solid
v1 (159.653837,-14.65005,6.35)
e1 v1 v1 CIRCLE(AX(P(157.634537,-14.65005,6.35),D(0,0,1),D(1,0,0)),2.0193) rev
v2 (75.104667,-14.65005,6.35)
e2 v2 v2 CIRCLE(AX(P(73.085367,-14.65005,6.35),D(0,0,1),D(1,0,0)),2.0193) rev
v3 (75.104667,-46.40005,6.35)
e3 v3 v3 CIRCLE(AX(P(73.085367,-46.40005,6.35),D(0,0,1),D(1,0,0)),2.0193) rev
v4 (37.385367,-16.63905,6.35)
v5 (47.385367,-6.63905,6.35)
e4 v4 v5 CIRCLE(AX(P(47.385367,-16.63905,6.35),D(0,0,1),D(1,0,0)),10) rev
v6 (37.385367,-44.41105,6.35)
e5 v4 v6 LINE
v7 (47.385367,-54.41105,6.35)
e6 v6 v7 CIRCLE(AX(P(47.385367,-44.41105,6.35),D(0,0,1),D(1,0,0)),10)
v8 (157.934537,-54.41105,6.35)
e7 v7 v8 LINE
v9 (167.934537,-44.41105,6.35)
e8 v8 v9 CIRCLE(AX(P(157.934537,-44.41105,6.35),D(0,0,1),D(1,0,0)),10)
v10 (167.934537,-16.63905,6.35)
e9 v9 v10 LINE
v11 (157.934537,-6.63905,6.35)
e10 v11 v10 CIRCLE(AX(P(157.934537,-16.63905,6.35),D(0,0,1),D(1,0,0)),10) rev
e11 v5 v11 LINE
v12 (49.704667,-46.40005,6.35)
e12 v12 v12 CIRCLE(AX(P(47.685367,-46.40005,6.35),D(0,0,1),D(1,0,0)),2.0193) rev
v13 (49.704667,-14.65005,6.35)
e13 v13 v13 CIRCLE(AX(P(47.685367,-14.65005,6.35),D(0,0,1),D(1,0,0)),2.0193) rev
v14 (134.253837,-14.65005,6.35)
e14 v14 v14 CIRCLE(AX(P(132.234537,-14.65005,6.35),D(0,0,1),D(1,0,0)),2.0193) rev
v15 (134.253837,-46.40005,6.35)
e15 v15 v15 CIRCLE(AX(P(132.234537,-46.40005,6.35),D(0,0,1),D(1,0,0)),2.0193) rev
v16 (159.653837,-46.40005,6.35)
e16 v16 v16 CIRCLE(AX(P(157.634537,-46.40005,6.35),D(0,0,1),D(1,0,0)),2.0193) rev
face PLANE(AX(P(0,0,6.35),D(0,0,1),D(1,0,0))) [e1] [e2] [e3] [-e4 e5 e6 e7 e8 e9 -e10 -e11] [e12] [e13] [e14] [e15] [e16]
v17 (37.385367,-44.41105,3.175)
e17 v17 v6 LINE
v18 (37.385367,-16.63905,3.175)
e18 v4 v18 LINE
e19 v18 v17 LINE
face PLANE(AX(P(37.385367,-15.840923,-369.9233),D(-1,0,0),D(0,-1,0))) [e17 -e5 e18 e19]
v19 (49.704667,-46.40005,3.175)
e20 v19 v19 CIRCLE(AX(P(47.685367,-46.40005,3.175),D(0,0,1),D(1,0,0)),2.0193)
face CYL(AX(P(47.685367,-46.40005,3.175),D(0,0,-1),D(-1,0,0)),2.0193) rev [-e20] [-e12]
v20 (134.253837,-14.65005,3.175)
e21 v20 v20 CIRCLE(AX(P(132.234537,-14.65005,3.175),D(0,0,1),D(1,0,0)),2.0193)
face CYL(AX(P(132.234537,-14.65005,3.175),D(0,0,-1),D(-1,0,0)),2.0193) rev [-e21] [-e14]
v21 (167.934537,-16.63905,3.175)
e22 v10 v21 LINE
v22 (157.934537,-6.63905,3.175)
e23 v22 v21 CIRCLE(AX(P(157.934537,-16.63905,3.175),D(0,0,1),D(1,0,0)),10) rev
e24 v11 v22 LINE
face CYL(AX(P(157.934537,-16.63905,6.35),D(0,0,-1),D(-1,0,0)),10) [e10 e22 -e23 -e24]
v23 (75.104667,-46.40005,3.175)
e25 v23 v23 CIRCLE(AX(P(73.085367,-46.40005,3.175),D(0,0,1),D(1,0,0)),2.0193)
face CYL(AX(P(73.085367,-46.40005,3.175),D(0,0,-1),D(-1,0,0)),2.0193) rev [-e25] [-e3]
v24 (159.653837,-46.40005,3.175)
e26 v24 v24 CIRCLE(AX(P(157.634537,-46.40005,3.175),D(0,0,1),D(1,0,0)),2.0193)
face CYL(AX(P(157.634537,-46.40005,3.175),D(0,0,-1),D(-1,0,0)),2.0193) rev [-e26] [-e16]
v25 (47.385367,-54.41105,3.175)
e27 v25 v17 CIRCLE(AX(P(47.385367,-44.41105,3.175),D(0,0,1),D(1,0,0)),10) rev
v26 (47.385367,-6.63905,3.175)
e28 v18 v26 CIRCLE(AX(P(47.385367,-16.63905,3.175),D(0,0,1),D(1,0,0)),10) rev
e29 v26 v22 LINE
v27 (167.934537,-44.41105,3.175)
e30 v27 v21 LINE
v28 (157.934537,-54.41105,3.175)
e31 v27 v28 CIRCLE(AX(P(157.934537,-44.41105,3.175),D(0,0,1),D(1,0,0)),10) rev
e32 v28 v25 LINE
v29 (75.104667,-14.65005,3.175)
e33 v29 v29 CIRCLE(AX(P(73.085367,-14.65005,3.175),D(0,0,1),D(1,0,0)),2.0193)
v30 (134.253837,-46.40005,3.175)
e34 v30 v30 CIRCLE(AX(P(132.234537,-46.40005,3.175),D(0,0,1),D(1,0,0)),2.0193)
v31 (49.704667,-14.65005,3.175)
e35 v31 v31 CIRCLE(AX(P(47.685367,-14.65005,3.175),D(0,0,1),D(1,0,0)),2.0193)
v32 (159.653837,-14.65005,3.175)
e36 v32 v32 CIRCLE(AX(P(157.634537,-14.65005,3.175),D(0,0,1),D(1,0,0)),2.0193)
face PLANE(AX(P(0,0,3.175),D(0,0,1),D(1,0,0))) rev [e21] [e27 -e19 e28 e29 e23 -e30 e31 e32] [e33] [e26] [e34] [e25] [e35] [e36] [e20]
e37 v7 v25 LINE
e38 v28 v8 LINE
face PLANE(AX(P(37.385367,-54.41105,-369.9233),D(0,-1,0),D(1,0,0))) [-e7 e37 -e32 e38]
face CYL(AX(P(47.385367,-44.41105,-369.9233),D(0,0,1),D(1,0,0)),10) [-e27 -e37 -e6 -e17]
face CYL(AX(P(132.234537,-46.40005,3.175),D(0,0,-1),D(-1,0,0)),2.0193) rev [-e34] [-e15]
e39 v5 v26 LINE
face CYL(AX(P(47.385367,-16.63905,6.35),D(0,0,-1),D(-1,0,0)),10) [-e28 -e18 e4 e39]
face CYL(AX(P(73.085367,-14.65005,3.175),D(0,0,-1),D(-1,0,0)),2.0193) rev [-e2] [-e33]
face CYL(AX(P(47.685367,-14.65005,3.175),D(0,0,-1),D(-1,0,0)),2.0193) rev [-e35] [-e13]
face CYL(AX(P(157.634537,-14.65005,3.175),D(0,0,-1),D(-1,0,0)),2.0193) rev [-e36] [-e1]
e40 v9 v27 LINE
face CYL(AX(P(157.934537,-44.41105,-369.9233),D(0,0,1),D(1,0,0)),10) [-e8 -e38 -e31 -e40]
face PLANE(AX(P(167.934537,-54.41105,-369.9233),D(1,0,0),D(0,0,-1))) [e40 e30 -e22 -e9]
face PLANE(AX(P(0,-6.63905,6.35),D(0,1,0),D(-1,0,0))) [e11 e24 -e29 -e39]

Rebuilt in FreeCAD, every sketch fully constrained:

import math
import FreeCAD as App
import Part
import Sketcher

V = App.Vector


def edges_at(feature, points):
    """Names of the edges that pass closest to the given points."""
    edges = feature.Shape.Edges
    near = lambda p: min(range(len(edges)), key=lambda i: edges[i].distToShape(Part.Vertex(*p))[0])
    return sorted({f"Edge{near(p) + 1}" for p in points})


def add_polygon(sketch, points):
    """Adds a closed chain of lines whose ends are joined by coincident constraints."""
    first, n = sketch.GeometryCount, len(points)
    for a, b in zip(points, points[1:] + points[:1]):
        sketch.addGeometry(Part.LineSegment(App.Vector(*a, 0), App.Vector(*b, 0)), False)
    for i in range(n):
        sketch.addConstraint(Sketcher.Constraint("Coincident", first + i, 2, first + (i + 1) % n, 1))

doc = App.newDocument("Part")
body = doc.addObject("PartDesign::Body", "Body")

sketch1 = body.newObject("Sketcher::SketchObject", "Sketch")
sketch1.AttachmentSupport = (doc.getObject("XY_Plane"), [""])
sketch1.MapMode = "FlatFace"
add_polygon(sketch1, [(165.9, -16.7), (157.3, -8.1), (115.4, 33.9), (115.4, 203.4), (157.3, 245.3), (165.9, 254), (165.9, 294), (39.4, 289.7), (39.4, 254), (90, 203.4), (90, 33.9), (39.4, -16.7), (39.4, -52.4), (165.9, -56.7)])
sketch1.addGeometry(Part.Circle(V(47.7, -46.4, 0), V(0, 0, 1), 2), False)
sketch1.addGeometry(Part.Circle(V(47.7, -14.7, 0), V(0, 0, 1), 2), False)
sketch1.addGeometry(Part.Circle(V(73.1, -46.4, 0), V(0, 0, 1), 2), False)
sketch1.addGeometry(Part.Circle(V(73.1, -14.7, 0), V(0, 0, 1), 2), False)
sketch1.addGeometry(Part.Circle(V(132.2, -46.4, 0), V(0, 0, 1), 2), False)
sketch1.addGeometry(Part.Circle(V(132.2, -14.7, 0), V(0, 0, 1), 2), False)
sketch1.addGeometry(Part.Circle(V(157.6, -46.4, 0), V(0, 0, 1), 2), False)
sketch1.addGeometry(Part.Circle(V(157.6, -14.7, 0), V(0, 0, 1), 2), False)
sketch1.addGeometry(Part.Circle(V(47.7, 251.9, 0), V(0, 0, 1), 2), False)
sketch1.addGeometry(Part.Circle(V(47.7, 283.7, 0), V(0, 0, 1), 2), False)
sketch1.addGeometry(Part.Circle(V(73.1, 251.9, 0), V(0, 0, 1), 2), False)
sketch1.addGeometry(Part.Circle(V(73.1, 283.7, 0), V(0, 0, 1), 2), False)
sketch1.addGeometry(Part.Circle(V(132.2, 251.9, 0), V(0, 0, 1), 2), False)
sketch1.addGeometry(Part.Circle(V(157.6, 251.9, 0), V(0, 0, 1), 2), False)
sketch1.addGeometry(Part.Circle(V(157.6, 283.7, 0), V(0, 0, 1), 2), False)
sketch1.addConstraint([
    Sketcher.Constraint("Vertical", 2),
    Sketcher.Constraint("Vertical", 5),
    Sketcher.Constraint("Vertical", 7),
    Sketcher.Constraint("Vertical", 9),
    Sketcher.Constraint("Vertical", 11),
    Sketcher.Constraint("Vertical", 13),
    Sketcher.Constraint("Equal", 14, 15),
    Sketcher.Constraint("Equal", 15, 16),
    Sketcher.Constraint("Equal", 16, 17),
    Sketcher.Constraint("Equal", 17, 18),
    Sketcher.Constraint("Equal", 18, 19),
    Sketcher.Constraint("Equal", 19, 20),
    Sketcher.Constraint("Equal", 20, 21),
    Sketcher.Constraint("Equal", 21, 22),
    Sketcher.Constraint("Equal", 22, 23),
    Sketcher.Constraint("Equal", 23, 24),
    Sketcher.Constraint("Equal", 24, 25),
    Sketcher.Constraint("Equal", 25, 26),
    Sketcher.Constraint("Equal", 26, 27),
    Sketcher.Constraint("Equal", 27, 28),
    Sketcher.Constraint("Parallel", 0, 1),
    Sketcher.Constraint("Perpendicular", 1, 3),
    Sketcher.Constraint("Parallel", 3, 4),
    Sketcher.Constraint("Perpendicular", 4, 8),
    Sketcher.Constraint("Perpendicular", 8, 10),
    Sketcher.Constraint("Horizontal", 14, 3, 16, 3),
    Sketcher.Constraint("Horizontal", 15, 3, 17, 3),
    Sketcher.Constraint("Horizontal", 16, 3, 18, 3),
    Sketcher.Constraint("Horizontal", 17, 3, 19, 3),
    Sketcher.Constraint("Horizontal", 18, 3, 20, 3),
    Sketcher.Constraint("Horizontal", 19, 3, 21, 3),
    Sketcher.Constraint("Horizontal", 22, 3, 24, 3),
    Sketcher.Constraint("Horizontal", 23, 3, 25, 3),
    Sketcher.Constraint("Horizontal", 24, 3, 26, 3),
    Sketcher.Constraint("Horizontal", 26, 3, 27, 3),
    Sketcher.Constraint("Horizontal", 25, 3, 28, 3),
    Sketcher.Constraint("Horizontal", 4, 2, 7, 2),
    Sketcher.Constraint("Horizontal", 2, 2, 8, 2),
    Sketcher.Constraint("Horizontal", 1, 2, 9, 2),
    Sketcher.Constraint("Horizontal", 10, 2, 13, 2),
    Sketcher.Constraint("Vertical", 14, 3, 15, 3),
    Sketcher.Constraint("Vertical", 16, 3, 17, 3),
    Sketcher.Constraint("Vertical", 18, 3, 19, 3),
    Sketcher.Constraint("Vertical", 20, 3, 21, 3),
    Sketcher.Constraint("Vertical", 15, 3, 22, 3),
    Sketcher.Constraint("Vertical", 22, 3, 23, 3),
    Sketcher.Constraint("Vertical", 17, 3, 24, 3),
    Sketcher.Constraint("Vertical", 24, 3, 25, 3),
    Sketcher.Constraint("Vertical", 19, 3, 26, 3),
    Sketcher.Constraint("Vertical", 21, 3, 27, 3),
    Sketcher.Constraint("Vertical", 27, 3, 28, 3),
    Sketcher.Constraint("Vertical", 0, 2, 3, 2),
    Sketcher.Constraint("Vertical", 7, 2, 10, 2),
    Sketcher.Constraint("Vertical", 5, 2, 12, 2),
    Sketcher.Constraint("Equal", 7, 11),
    Sketcher.Constraint("Equal", 5, 13),
    Sketcher.Constraint("Diameter", 14, 4.0386),
    Sketcher.Constraint("DistanceX", 14, 3, 16, 3, 25.4),
    Sketcher.Constraint("DistanceX", 18, 3, 20, 3, 25.4),
    Sketcher.Constraint("DistanceY", 21, 3, 0, 2, 6.6),
    Sketcher.Constraint("DistanceY", 3, 2, 27, 3, 6.6),
    Sketcher.Constraint("DistanceX", 27, 3, 4, 2, 8.3),
    Sketcher.Constraint("DistanceX", 6, 2, 23, 3, 8.3),
    Sketcher.Constraint("DistanceX", 8, 2, 2, 2, 25.4),
    Sketcher.Constraint("DistanceY", 14, 3, 15, 3, 31.75),
    Sketcher.Constraint("DistanceY", 22, 3, 23, 3, 31.75),
    Sketcher.Constraint("DistanceY", 5, 1, 5, 2, 40.0057),
    Sketcher.Constraint("DistanceY", 7, 2, 7, 1, 35.7417),
    Sketcher.Constraint("DistanceY", 28, 3, 5, 2, 10.275),
    Sketcher.Constraint("DistanceY", 2, 1, 2, 2, 169.48903),
    Sketcher.Constraint("DistanceY", 15, 3, 22, 3, 266.5996),
    Sketcher.Constraint("DistanceY", 14, 3, -1, 1, 46.40005),
    Sketcher.Constraint("DistanceX", -1, 1, 14, 3, 47.685367),
])
pad1 = body.newObject("PartDesign::Pad", "Pad")
pad1.Profile = sketch1
pad1.Length = 3.175

sketch2 = body.newObject("Sketcher::SketchObject", "Sketch001")
sketch2.AttachmentSupport = (doc.getObject("XY_Plane"), [""])
sketch2.MapMode = "FlatFace"
sketch2.AttachmentOffset = App.Placement(V(0, 0, 3.175), App.Rotation())
add_polygon(sketch2, [(39.4, -52.4), (165.9, -56.7), (165.9, -52.4)])
add_polygon(sketch2, [(165.9, 289.7), (165.9, 294), (39.4, 289.7)])
sketch2.addConstraint([
    Sketcher.Constraint("Vertical", 1),
    Sketcher.Constraint("Horizontal", 2),
    Sketcher.Constraint("Vertical", 3),
    Sketcher.Constraint("Horizontal", 5),
    Sketcher.Constraint("Vertical", 1, 2, 3, 2),
    Sketcher.Constraint("Vertical", 2, 2, 4, 2),
    Sketcher.Constraint("Equal", 1, 3),
    Sketcher.Constraint("DistanceY", 1, 1, 1, 2, 4.264),
    Sketcher.Constraint("DistanceX", 2, 2, 2, 1, 126.54917),
    Sketcher.Constraint("DistanceY", 1, 2, 3, 2, 346.3856),
    Sketcher.Constraint("DistanceY", 0, 2, -1, 1, 56.67505),
    Sketcher.Constraint("DistanceX", -1, 1, 0, 2, 165.934537),
])
pocket1 = body.newObject("PartDesign::Pocket", "Pocket")
pocket1.Profile = sketch2
pocket1.Length = 10

sketch3 = body.newObject("Sketcher::SketchObject", "Sketch002")
sketch3.AttachmentSupport = (doc.getObject("XY_Plane"), [""])
sketch3.MapMode = "FlatFace"
sketch3.AttachmentOffset = App.Placement(V(0, 0, 3.175), App.Rotation())
add_polygon(sketch3, [(37.4, -15.8), (37.4, -54.4), (167.9, -54.4), (167.9, -15.8), (117.4, 34.7), (117.4, 202.6), (167.9, 253.1), (167.9, 291.7), (37.4, 291.7), (37.4, 253.1), (88, 202.6), (88, 34.7)])
sketch3.addGeometry(Part.Circle(V(47.7, -46.4, 0), V(0, 0, 1), 2), False)
sketch3.addGeometry(Part.Circle(V(47.7, -14.7, 0), V(0, 0, 1), 2), False)
sketch3.addGeometry(Part.Circle(V(73.1, -46.4, 0), V(0, 0, 1), 2), False)
sketch3.addGeometry(Part.Circle(V(73.1, -14.7, 0), V(0, 0, 1), 2), False)
sketch3.addGeometry(Part.Circle(V(132.2, -46.4, 0), V(0, 0, 1), 2), False)
sketch3.addGeometry(Part.Circle(V(132.2, -14.7, 0), V(0, 0, 1), 2), False)
sketch3.addGeometry(Part.Circle(V(157.6, -46.4, 0), V(0, 0, 1), 2), False)
sketch3.addGeometry(Part.Circle(V(157.6, -14.7, 0), V(0, 0, 1), 2), False)
sketch3.addGeometry(Part.Circle(V(47.7, 251.9, 0), V(0, 0, 1), 2), False)
sketch3.addGeometry(Part.Circle(V(47.7, 283.7, 0), V(0, 0, 1), 2), False)
sketch3.addGeometry(Part.Circle(V(73.1, 251.9, 0), V(0, 0, 1), 2), False)
sketch3.addGeometry(Part.Circle(V(73.1, 283.7, 0), V(0, 0, 1), 2), False)
sketch3.addGeometry(Part.Circle(V(132.2, 251.9, 0), V(0, 0, 1), 2), False)
sketch3.addGeometry(Part.Circle(V(157.6, 251.9, 0), V(0, 0, 1), 2), False)
sketch3.addGeometry(Part.Circle(V(157.6, 283.7, 0), V(0, 0, 1), 2), False)
sketch3.addConstraint([
    Sketcher.Constraint("Vertical", 0),
    Sketcher.Constraint("Horizontal", 1),
    Sketcher.Constraint("Vertical", 2),
    Sketcher.Constraint("Vertical", 4),
    Sketcher.Constraint("Vertical", 6),
    Sketcher.Constraint("Horizontal", 7),
    Sketcher.Constraint("Vertical", 8),
    Sketcher.Constraint("Vertical", 10),
    Sketcher.Constraint("Equal", 12, 13),
    Sketcher.Constraint("Equal", 13, 14),
    Sketcher.Constraint("Equal", 14, 15),
    Sketcher.Constraint("Equal", 15, 16),
    Sketcher.Constraint("Equal", 16, 17),
    Sketcher.Constraint("Equal", 17, 18),
    Sketcher.Constraint("Equal", 18, 19),
    Sketcher.Constraint("Equal", 19, 20),
    Sketcher.Constraint("Equal", 20, 21),
    Sketcher.Constraint("Equal", 21, 22),
    Sketcher.Constraint("Equal", 22, 23),
    Sketcher.Constraint("Equal", 23, 24),
    Sketcher.Constraint("Equal", 24, 25),
    Sketcher.Constraint("Equal", 25, 26),
    Sketcher.Constraint("Perpendicular", 3, 5),
    Sketcher.Constraint("Perpendicular", 5, 9),
    Sketcher.Constraint("Perpendicular", 9, 11),
    Sketcher.Constraint("Horizontal", 12, 3, 14, 3),
    Sketcher.Constraint("Horizontal", 13, 3, 15, 3),
    Sketcher.Constraint("Horizontal", 14, 3, 16, 3),
    Sketcher.Constraint("Horizontal", 15, 3, 17, 3),
    Sketcher.Constraint("Horizontal", 16, 3, 18, 3),
    Sketcher.Constraint("Horizontal", 17, 3, 19, 3),
    Sketcher.Constraint("Horizontal", 20, 3, 22, 3),
    Sketcher.Constraint("Horizontal", 21, 3, 23, 3),
    Sketcher.Constraint("Horizontal", 22, 3, 24, 3),
    Sketcher.Constraint("Horizontal", 24, 3, 25, 3),
    Sketcher.Constraint("Horizontal", 23, 3, 26, 3),
    Sketcher.Constraint("Horizontal", 5, 2, 8, 2),
    Sketcher.Constraint("Horizontal", 4, 2, 9, 2),
    Sketcher.Constraint("Horizontal", 3, 2, 10, 2),
    Sketcher.Constraint("Horizontal", 2, 2, 11, 2),
    Sketcher.Constraint("Vertical", 12, 3, 13, 3),
    Sketcher.Constraint("Vertical", 14, 3, 15, 3),
    Sketcher.Constraint("Vertical", 16, 3, 17, 3),
    Sketcher.Constraint("Vertical", 18, 3, 19, 3),
    Sketcher.Constraint("Vertical", 13, 3, 20, 3),
    Sketcher.Constraint("Vertical", 20, 3, 21, 3),
    Sketcher.Constraint("Vertical", 15, 3, 22, 3),
    Sketcher.Constraint("Vertical", 22, 3, 23, 3),
    Sketcher.Constraint("Vertical", 17, 3, 24, 3),
    Sketcher.Constraint("Vertical", 19, 3, 25, 3),
    Sketcher.Constraint("Vertical", 25, 3, 26, 3),
    Sketcher.Constraint("Vertical", 2, 2, 5, 2),
    Sketcher.Constraint("Vertical", 0, 2, 7, 2),
    Sketcher.Constraint("Equal", 2, 6),
    Sketcher.Constraint("Diameter", 12, 4.0386),
    Sketcher.Constraint("DistanceX", 12, 3, 14, 3, 25.4),
    Sketcher.Constraint("DistanceX", 16, 3, 18, 3, 25.4),
    Sketcher.Constraint("DistanceX", 0, 2, 12, 3, 10.3),
    Sketcher.Constraint("DistanceX", 18, 3, 1, 2, 10.3),
    Sketcher.Constraint("DistanceX", 9, 2, 4, 2, 29.4),
    Sketcher.Constraint("DistanceY", 12, 3, 13, 3, 31.75),
    Sketcher.Constraint("DistanceY", 20, 3, 21, 3, 31.75),
    Sketcher.Constraint("DistanceY", 0, 2, 12, 3, 8.011),
    Sketcher.Constraint("DistanceY", 26, 3, 6, 2, 8.011),
    Sketcher.Constraint("DistanceX", 1, 1, 1, 2, 130.54917),
    Sketcher.Constraint("DistanceY", 13, 3, 20, 3, 266.5996),
    Sketcher.Constraint("DistanceY", 0, 2, 0, 1, 38.570127),
    Sketcher.Constraint("DistanceY", 12, 3, -1, 1, 46.40005),
    Sketcher.Constraint("DistanceX", -1, 1, 12, 3, 47.685367),
])
pad2 = body.newObject("PartDesign::Pad", "Pad001")
pad2.Profile = sketch3
pad2.Length = 3.175
pad2.Reversed = True
doc.recompute()

fillet = body.newObject("PartDesign::Fillet", "Fillet")
fillet.Base = (pad2, edges_at(pad2, [
    (37.385, -54.411, 1.587),
    (167.935, -54.411, 1.587),
    (167.935, -15.841, 1.587),
    (167.935, 253.14, 1.587),
    (167.935, 291.711, 1.587),
    (37.385, 291.711, 1.587),
    (37.385, 253.14, 1.587),
    (37.385, -15.841, 1.587),
]))
fillet.Radius = 10
doc.recompute()

fillet2 = body.newObject("PartDesign::Fillet", "Fillet001")
fillet2.Base = (fillet, edges_at(fillet, [
    (117.36, 34.734, 1.587),
    (117.36, 202.566, 1.587),
    (87.96, 202.566, 1.587),
    (87.96, 34.734, 1.587),
]))
fillet2.Radius = 50

sketch4 = body.newObject("Sketcher::SketchObject", "Sketch003")
sketch4.AttachmentSupport = (doc.getObject("XY_Plane"), [""])
sketch4.MapMode = "FlatFace"
sketch4.AttachmentOffset = App.Placement(V(0, 0, 3.175), App.Rotation())
sketch4.addGeometry(Part.Circle(V(132.2, 283.7, 0), V(0, 0, 1), 2), False)
sketch4.addConstraint([
    Sketcher.Constraint("Diameter", 0, 4.04),
    Sketcher.Constraint("DistanceY", -1, 1, 0, 3, 283.69955),
    Sketcher.Constraint("DistanceX", -1, 1, 0, 3, 132.234537),
])
pocket2 = body.newObject("PartDesign::Pocket", "Pocket001")
pocket2.Profile = sketch4
pocket2.Length = 10

sketch5 = body.newObject("Sketcher::SketchObject", "Sketch004")
sketch5.AttachmentSupport = (doc.getObject("XY_Plane"), [""])
sketch5.MapMode = "FlatFace"
sketch5.AttachmentOffset = App.Placement(V(0, 0, 3.175), App.Rotation())
sketch5.addGeometry([
    Part.LineSegment(V(167.9, -44.4, 0), V(167.9, -16.6, 0)),
    Part.ArcOfCircle(Part.Circle(V(157.9, -16.6, 0), V(0, 0, 1), 10), math.radians(0), math.radians(90)),
    Part.LineSegment(V(157.9, -6.6, 0), V(47.4, -6.6, 0)),
    Part.ArcOfCircle(Part.Circle(V(47.4, -16.6, 0), V(0, 0, 1), 10), math.radians(90), math.radians(180)),
    Part.LineSegment(V(37.4, -16.6, 0), V(37.4, -44.4, 0)),
    Part.ArcOfCircle(Part.Circle(V(47.4, -44.4, 0), V(0, 0, 1), 10), math.radians(180), math.radians(270)),
    Part.LineSegment(V(47.4, -54.4, 0), V(157.9, -54.4, 0)),
    Part.ArcOfCircle(Part.Circle(V(157.9, -44.4, 0), V(0, 0, 1), 10), math.radians(-90), math.radians(0)),
    Part.Circle(V(47.7, -46.4, 0), V(0, 0, 1), 2),
    Part.Circle(V(73.1, -46.4, 0), V(0, 0, 1), 2),
    Part.Circle(V(132.2, -46.4, 0), V(0, 0, 1), 2),
    Part.Circle(V(157.6, -46.4, 0), V(0, 0, 1), 2),
    Part.Circle(V(47.7, -14.7, 0), V(0, 0, 1), 2),
    Part.Circle(V(73.1, -14.7, 0), V(0, 0, 1), 2),
    Part.Circle(V(132.2, -14.7, 0), V(0, 0, 1), 2),
    Part.Circle(V(157.6, -14.7, 0), V(0, 0, 1), 2),
], False)
sketch5.addConstraint([
    Sketcher.Constraint("Tangent", 0, 2, 1, 1),
    Sketcher.Constraint("Tangent", 1, 2, 2, 1),
    Sketcher.Constraint("Tangent", 2, 2, 3, 1),
    Sketcher.Constraint("Tangent", 3, 2, 4, 1),
    Sketcher.Constraint("Tangent", 4, 2, 5, 1),
    Sketcher.Constraint("Tangent", 5, 2, 6, 1),
    Sketcher.Constraint("Tangent", 6, 2, 7, 1),
    Sketcher.Constraint("Tangent", 7, 2, 0, 1),
    Sketcher.Constraint("Vertical", 0),
    Sketcher.Constraint("Horizontal", 2),
    Sketcher.Constraint("Vertical", 4),
    Sketcher.Constraint("Horizontal", 6),
    Sketcher.Constraint("Equal", 1, 3),
    Sketcher.Constraint("Equal", 3, 5),
    Sketcher.Constraint("Equal", 5, 7),
    Sketcher.Constraint("Equal", 8, 9),
    Sketcher.Constraint("Equal", 9, 10),
    Sketcher.Constraint("Equal", 10, 11),
    Sketcher.Constraint("Equal", 11, 12),
    Sketcher.Constraint("Equal", 12, 13),
    Sketcher.Constraint("Equal", 13, 14),
    Sketcher.Constraint("Equal", 14, 15),
    Sketcher.Constraint("Horizontal", 8, 3, 9, 3),
    Sketcher.Constraint("Horizontal", 9, 3, 10, 3),
    Sketcher.Constraint("Horizontal", 10, 3, 11, 3),
    Sketcher.Constraint("Horizontal", 12, 3, 13, 3),
    Sketcher.Constraint("Horizontal", 13, 3, 14, 3),
    Sketcher.Constraint("Horizontal", 14, 3, 15, 3),
    Sketcher.Constraint("Vertical", 8, 3, 12, 3),
    Sketcher.Constraint("Vertical", 9, 3, 13, 3),
    Sketcher.Constraint("Vertical", 10, 3, 14, 3),
    Sketcher.Constraint("Vertical", 11, 3, 15, 3),
    Sketcher.Constraint("Radius", 1, 10.0),
    Sketcher.Constraint("Diameter", 8, 4.0386),
    Sketcher.Constraint("DistanceX", 5, 3, 8, 3, 0.3),
    Sketcher.Constraint("DistanceX", 8, 3, 9, 3, 25.4),
    Sketcher.Constraint("DistanceX", 10, 3, 7, 3, 25.7),
    Sketcher.Constraint("DistanceX", 11, 3, 7, 3, 0.3),
    Sketcher.Constraint("DistanceY", 0, 1, 0, 2, 27.772),
    Sketcher.Constraint("DistanceY", 8, 3, 12, 3, 31.75),
    Sketcher.Constraint("DistanceY", 8, 3, 5, 3, 1.989),
    Sketcher.Constraint("DistanceX", 2, 2, 2, 1, 110.54917),
    Sketcher.Constraint("DistanceY", 1, 3, -1, 1, 16.63905),
    Sketcher.Constraint("DistanceX", -1, 1, 1, 3, 157.934537),
])
pad3 = body.newObject("PartDesign::Pad", "Pad002")
pad3.Profile = sketch5
pad3.Length = 3.175

sketch6 = body.newObject("Sketcher::SketchObject", "Sketch005")
sketch6.AttachmentSupport = (doc.getObject("YZ_Plane"), [""])
sketch6.MapMode = "FlatFace"
sketch6.AttachmentOffset = App.Placement(V(0, 0, 37.385367), App.Rotation())
add_polygon(sketch6, [(291.7, 0), (-54.4, 0), (-54.4, 3.2), (291.7, 3.2)])
sketch6.addConstraint([
    Sketcher.Constraint("Horizontal", 0),
    Sketcher.Constraint("Vertical", 1),
    Sketcher.Constraint("Horizontal", 2),
    Sketcher.Constraint("Vertical", 3),
    Sketcher.Constraint("PointOnObject", 0, 2, -1),
    Sketcher.Constraint("DistanceY", 1, 1, 1, 2, 3.175),
    Sketcher.Constraint("DistanceX", 0, 2, 0, 1, 346.1216),
    Sketcher.Constraint("DistanceX", 0, 2, -1, 1, 54.41105),
])
pocket3 = body.newObject("PartDesign::Pocket", "Pocket002")
pocket3.Profile = sketch6
pocket3.Type = "ThroughAll"
pocket3.Reversed = True

doc.recompute()
